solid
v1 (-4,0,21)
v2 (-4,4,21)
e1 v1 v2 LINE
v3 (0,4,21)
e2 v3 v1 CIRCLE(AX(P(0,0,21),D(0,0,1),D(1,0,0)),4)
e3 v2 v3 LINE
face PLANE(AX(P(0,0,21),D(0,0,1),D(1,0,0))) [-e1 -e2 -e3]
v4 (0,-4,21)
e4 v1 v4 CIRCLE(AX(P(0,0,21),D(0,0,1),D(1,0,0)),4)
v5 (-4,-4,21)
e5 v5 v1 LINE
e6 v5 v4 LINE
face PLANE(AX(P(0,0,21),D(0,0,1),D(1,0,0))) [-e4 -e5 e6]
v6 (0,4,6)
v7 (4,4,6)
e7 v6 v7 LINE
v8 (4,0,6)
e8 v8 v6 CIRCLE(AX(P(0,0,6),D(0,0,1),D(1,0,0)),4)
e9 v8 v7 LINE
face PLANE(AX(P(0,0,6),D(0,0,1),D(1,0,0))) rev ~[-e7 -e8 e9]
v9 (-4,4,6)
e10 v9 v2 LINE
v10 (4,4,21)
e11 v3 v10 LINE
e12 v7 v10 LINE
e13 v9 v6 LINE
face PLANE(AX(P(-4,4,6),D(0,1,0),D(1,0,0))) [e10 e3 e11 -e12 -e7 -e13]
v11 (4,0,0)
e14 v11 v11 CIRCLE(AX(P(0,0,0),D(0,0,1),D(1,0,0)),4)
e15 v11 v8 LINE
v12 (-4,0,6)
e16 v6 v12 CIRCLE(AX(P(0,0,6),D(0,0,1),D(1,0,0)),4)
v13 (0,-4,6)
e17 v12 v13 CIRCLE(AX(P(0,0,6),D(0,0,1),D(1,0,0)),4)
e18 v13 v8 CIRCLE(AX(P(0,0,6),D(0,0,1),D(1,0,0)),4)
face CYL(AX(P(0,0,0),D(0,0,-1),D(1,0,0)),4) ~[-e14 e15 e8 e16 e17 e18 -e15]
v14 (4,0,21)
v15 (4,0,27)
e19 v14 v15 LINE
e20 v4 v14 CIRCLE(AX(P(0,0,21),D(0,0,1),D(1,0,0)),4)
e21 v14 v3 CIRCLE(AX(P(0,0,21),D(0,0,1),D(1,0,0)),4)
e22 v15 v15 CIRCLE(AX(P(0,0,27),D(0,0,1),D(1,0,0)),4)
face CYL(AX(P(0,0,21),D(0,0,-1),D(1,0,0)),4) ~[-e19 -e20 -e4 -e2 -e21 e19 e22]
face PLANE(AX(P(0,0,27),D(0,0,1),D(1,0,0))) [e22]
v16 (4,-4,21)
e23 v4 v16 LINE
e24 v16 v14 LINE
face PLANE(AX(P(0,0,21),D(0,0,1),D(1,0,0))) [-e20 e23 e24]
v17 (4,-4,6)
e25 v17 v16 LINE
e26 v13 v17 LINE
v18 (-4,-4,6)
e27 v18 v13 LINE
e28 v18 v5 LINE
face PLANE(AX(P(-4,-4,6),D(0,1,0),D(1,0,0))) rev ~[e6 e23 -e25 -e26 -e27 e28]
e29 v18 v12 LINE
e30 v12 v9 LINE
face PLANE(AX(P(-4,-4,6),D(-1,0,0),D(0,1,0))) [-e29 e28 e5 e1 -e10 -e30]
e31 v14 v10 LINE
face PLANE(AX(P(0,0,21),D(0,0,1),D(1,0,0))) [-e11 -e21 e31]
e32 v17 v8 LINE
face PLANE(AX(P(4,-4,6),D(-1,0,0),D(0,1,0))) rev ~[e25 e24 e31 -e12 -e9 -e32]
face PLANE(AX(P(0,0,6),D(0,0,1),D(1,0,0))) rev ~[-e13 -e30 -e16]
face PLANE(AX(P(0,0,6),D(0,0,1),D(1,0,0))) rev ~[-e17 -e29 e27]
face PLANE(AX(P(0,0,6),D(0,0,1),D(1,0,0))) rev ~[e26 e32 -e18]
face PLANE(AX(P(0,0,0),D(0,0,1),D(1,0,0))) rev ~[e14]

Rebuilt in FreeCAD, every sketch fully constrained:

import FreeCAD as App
import Part
import Sketcher
from FreeCAD import Vector

doc = App.newDocument("Part")
body = doc.addObject("PartDesign::Body", "Body")

# Sketch on XY plane
sketch1 = body.newObject("Sketcher::SketchObject", "Sketch")
sketch1.AttachmentSupport = (doc.getObject("XY_Plane"), [""])
sketch1.MapMode = "FlatFace"
sketch1.addGeometry(Part.Circle(Vector(0, 0, 0), Vector(0, 0, 1), 4), False)
sketch1.addConstraint([
    Sketcher.Constraint("Coincident", 0, 3, -1, 1),
    Sketcher.Constraint("Diameter", 0, 8.0),
])
pad1 = body.newObject("PartDesign::Pad", "Pad")
pad1.Profile = sketch1
pad1.Length = 6

# Sketch on XY plane
sketch2 = body.newObject("Sketcher::SketchObject", "Sketch001")
sketch2.AttachmentSupport = (doc.getObject("XY_Plane"), [""])
sketch2.MapMode = "FlatFace"
sketch2.AttachmentOffset = App.Placement(Vector(0, 0, 6), App.Rotation())
sketch2.addGeometry([
    Part.LineSegment(Vector(-4, 4, 0), Vector(-4, -4, 0)),
    Part.LineSegment(Vector(-4, -4, 0), Vector(4, -4, 0)),
    Part.LineSegment(Vector(4, -4, 0), Vector(4, 4, 0)),
    Part.LineSegment(Vector(4, 4, 0), Vector(-4, 4, 0)),
], False)
sketch2.addConstraint([
    Sketcher.Constraint("Coincident", 0, 2, 1, 1),
    Sketcher.Constraint("Coincident", 1, 2, 2, 1),
    Sketcher.Constraint("Coincident", 2, 2, 3, 1),
    Sketcher.Constraint("Coincident", 3, 2, 0, 1),
    Sketcher.Constraint("Vertical", 0),
    Sketcher.Constraint("Horizontal", 1),
    Sketcher.Constraint("Vertical", 2),
    Sketcher.Constraint("Horizontal", 3),
    Sketcher.Constraint("Symmetric", 0, 2, 2, 2, -1, 1),
    Sketcher.Constraint("Equal", 3, 0),
    Sketcher.Constraint("DistanceX", 1, 1, 1, 2, 8.0),
])
pad2 = body.newObject("PartDesign::Pad", "Pad001")
pad2.Profile = sketch2
pad2.Length = 15

# Sketch on XY plane
sketch3 = body.newObject("Sketcher::SketchObject", "Sketch002")
sketch3.AttachmentSupport = (doc.getObject("XY_Plane"), [""])
sketch3.MapMode = "FlatFace"
sketch3.AttachmentOffset = App.Placement(Vector(0, 0, 21), App.Rotation())
sketch3.addGeometry(Part.Circle(Vector(0, 0, 0), Vector(0, 0, 1), 4), False)
sketch3.addConstraint([
    Sketcher.Constraint("Coincident", 0, 3, -1, 1),
    Sketcher.Constraint("Diameter", 0, 8.0),
])
pad3 = body.newObject("PartDesign::Pad", "Pad002")
pad3.Profile = sketch3
pad3.Length = 6

doc.recompute()
